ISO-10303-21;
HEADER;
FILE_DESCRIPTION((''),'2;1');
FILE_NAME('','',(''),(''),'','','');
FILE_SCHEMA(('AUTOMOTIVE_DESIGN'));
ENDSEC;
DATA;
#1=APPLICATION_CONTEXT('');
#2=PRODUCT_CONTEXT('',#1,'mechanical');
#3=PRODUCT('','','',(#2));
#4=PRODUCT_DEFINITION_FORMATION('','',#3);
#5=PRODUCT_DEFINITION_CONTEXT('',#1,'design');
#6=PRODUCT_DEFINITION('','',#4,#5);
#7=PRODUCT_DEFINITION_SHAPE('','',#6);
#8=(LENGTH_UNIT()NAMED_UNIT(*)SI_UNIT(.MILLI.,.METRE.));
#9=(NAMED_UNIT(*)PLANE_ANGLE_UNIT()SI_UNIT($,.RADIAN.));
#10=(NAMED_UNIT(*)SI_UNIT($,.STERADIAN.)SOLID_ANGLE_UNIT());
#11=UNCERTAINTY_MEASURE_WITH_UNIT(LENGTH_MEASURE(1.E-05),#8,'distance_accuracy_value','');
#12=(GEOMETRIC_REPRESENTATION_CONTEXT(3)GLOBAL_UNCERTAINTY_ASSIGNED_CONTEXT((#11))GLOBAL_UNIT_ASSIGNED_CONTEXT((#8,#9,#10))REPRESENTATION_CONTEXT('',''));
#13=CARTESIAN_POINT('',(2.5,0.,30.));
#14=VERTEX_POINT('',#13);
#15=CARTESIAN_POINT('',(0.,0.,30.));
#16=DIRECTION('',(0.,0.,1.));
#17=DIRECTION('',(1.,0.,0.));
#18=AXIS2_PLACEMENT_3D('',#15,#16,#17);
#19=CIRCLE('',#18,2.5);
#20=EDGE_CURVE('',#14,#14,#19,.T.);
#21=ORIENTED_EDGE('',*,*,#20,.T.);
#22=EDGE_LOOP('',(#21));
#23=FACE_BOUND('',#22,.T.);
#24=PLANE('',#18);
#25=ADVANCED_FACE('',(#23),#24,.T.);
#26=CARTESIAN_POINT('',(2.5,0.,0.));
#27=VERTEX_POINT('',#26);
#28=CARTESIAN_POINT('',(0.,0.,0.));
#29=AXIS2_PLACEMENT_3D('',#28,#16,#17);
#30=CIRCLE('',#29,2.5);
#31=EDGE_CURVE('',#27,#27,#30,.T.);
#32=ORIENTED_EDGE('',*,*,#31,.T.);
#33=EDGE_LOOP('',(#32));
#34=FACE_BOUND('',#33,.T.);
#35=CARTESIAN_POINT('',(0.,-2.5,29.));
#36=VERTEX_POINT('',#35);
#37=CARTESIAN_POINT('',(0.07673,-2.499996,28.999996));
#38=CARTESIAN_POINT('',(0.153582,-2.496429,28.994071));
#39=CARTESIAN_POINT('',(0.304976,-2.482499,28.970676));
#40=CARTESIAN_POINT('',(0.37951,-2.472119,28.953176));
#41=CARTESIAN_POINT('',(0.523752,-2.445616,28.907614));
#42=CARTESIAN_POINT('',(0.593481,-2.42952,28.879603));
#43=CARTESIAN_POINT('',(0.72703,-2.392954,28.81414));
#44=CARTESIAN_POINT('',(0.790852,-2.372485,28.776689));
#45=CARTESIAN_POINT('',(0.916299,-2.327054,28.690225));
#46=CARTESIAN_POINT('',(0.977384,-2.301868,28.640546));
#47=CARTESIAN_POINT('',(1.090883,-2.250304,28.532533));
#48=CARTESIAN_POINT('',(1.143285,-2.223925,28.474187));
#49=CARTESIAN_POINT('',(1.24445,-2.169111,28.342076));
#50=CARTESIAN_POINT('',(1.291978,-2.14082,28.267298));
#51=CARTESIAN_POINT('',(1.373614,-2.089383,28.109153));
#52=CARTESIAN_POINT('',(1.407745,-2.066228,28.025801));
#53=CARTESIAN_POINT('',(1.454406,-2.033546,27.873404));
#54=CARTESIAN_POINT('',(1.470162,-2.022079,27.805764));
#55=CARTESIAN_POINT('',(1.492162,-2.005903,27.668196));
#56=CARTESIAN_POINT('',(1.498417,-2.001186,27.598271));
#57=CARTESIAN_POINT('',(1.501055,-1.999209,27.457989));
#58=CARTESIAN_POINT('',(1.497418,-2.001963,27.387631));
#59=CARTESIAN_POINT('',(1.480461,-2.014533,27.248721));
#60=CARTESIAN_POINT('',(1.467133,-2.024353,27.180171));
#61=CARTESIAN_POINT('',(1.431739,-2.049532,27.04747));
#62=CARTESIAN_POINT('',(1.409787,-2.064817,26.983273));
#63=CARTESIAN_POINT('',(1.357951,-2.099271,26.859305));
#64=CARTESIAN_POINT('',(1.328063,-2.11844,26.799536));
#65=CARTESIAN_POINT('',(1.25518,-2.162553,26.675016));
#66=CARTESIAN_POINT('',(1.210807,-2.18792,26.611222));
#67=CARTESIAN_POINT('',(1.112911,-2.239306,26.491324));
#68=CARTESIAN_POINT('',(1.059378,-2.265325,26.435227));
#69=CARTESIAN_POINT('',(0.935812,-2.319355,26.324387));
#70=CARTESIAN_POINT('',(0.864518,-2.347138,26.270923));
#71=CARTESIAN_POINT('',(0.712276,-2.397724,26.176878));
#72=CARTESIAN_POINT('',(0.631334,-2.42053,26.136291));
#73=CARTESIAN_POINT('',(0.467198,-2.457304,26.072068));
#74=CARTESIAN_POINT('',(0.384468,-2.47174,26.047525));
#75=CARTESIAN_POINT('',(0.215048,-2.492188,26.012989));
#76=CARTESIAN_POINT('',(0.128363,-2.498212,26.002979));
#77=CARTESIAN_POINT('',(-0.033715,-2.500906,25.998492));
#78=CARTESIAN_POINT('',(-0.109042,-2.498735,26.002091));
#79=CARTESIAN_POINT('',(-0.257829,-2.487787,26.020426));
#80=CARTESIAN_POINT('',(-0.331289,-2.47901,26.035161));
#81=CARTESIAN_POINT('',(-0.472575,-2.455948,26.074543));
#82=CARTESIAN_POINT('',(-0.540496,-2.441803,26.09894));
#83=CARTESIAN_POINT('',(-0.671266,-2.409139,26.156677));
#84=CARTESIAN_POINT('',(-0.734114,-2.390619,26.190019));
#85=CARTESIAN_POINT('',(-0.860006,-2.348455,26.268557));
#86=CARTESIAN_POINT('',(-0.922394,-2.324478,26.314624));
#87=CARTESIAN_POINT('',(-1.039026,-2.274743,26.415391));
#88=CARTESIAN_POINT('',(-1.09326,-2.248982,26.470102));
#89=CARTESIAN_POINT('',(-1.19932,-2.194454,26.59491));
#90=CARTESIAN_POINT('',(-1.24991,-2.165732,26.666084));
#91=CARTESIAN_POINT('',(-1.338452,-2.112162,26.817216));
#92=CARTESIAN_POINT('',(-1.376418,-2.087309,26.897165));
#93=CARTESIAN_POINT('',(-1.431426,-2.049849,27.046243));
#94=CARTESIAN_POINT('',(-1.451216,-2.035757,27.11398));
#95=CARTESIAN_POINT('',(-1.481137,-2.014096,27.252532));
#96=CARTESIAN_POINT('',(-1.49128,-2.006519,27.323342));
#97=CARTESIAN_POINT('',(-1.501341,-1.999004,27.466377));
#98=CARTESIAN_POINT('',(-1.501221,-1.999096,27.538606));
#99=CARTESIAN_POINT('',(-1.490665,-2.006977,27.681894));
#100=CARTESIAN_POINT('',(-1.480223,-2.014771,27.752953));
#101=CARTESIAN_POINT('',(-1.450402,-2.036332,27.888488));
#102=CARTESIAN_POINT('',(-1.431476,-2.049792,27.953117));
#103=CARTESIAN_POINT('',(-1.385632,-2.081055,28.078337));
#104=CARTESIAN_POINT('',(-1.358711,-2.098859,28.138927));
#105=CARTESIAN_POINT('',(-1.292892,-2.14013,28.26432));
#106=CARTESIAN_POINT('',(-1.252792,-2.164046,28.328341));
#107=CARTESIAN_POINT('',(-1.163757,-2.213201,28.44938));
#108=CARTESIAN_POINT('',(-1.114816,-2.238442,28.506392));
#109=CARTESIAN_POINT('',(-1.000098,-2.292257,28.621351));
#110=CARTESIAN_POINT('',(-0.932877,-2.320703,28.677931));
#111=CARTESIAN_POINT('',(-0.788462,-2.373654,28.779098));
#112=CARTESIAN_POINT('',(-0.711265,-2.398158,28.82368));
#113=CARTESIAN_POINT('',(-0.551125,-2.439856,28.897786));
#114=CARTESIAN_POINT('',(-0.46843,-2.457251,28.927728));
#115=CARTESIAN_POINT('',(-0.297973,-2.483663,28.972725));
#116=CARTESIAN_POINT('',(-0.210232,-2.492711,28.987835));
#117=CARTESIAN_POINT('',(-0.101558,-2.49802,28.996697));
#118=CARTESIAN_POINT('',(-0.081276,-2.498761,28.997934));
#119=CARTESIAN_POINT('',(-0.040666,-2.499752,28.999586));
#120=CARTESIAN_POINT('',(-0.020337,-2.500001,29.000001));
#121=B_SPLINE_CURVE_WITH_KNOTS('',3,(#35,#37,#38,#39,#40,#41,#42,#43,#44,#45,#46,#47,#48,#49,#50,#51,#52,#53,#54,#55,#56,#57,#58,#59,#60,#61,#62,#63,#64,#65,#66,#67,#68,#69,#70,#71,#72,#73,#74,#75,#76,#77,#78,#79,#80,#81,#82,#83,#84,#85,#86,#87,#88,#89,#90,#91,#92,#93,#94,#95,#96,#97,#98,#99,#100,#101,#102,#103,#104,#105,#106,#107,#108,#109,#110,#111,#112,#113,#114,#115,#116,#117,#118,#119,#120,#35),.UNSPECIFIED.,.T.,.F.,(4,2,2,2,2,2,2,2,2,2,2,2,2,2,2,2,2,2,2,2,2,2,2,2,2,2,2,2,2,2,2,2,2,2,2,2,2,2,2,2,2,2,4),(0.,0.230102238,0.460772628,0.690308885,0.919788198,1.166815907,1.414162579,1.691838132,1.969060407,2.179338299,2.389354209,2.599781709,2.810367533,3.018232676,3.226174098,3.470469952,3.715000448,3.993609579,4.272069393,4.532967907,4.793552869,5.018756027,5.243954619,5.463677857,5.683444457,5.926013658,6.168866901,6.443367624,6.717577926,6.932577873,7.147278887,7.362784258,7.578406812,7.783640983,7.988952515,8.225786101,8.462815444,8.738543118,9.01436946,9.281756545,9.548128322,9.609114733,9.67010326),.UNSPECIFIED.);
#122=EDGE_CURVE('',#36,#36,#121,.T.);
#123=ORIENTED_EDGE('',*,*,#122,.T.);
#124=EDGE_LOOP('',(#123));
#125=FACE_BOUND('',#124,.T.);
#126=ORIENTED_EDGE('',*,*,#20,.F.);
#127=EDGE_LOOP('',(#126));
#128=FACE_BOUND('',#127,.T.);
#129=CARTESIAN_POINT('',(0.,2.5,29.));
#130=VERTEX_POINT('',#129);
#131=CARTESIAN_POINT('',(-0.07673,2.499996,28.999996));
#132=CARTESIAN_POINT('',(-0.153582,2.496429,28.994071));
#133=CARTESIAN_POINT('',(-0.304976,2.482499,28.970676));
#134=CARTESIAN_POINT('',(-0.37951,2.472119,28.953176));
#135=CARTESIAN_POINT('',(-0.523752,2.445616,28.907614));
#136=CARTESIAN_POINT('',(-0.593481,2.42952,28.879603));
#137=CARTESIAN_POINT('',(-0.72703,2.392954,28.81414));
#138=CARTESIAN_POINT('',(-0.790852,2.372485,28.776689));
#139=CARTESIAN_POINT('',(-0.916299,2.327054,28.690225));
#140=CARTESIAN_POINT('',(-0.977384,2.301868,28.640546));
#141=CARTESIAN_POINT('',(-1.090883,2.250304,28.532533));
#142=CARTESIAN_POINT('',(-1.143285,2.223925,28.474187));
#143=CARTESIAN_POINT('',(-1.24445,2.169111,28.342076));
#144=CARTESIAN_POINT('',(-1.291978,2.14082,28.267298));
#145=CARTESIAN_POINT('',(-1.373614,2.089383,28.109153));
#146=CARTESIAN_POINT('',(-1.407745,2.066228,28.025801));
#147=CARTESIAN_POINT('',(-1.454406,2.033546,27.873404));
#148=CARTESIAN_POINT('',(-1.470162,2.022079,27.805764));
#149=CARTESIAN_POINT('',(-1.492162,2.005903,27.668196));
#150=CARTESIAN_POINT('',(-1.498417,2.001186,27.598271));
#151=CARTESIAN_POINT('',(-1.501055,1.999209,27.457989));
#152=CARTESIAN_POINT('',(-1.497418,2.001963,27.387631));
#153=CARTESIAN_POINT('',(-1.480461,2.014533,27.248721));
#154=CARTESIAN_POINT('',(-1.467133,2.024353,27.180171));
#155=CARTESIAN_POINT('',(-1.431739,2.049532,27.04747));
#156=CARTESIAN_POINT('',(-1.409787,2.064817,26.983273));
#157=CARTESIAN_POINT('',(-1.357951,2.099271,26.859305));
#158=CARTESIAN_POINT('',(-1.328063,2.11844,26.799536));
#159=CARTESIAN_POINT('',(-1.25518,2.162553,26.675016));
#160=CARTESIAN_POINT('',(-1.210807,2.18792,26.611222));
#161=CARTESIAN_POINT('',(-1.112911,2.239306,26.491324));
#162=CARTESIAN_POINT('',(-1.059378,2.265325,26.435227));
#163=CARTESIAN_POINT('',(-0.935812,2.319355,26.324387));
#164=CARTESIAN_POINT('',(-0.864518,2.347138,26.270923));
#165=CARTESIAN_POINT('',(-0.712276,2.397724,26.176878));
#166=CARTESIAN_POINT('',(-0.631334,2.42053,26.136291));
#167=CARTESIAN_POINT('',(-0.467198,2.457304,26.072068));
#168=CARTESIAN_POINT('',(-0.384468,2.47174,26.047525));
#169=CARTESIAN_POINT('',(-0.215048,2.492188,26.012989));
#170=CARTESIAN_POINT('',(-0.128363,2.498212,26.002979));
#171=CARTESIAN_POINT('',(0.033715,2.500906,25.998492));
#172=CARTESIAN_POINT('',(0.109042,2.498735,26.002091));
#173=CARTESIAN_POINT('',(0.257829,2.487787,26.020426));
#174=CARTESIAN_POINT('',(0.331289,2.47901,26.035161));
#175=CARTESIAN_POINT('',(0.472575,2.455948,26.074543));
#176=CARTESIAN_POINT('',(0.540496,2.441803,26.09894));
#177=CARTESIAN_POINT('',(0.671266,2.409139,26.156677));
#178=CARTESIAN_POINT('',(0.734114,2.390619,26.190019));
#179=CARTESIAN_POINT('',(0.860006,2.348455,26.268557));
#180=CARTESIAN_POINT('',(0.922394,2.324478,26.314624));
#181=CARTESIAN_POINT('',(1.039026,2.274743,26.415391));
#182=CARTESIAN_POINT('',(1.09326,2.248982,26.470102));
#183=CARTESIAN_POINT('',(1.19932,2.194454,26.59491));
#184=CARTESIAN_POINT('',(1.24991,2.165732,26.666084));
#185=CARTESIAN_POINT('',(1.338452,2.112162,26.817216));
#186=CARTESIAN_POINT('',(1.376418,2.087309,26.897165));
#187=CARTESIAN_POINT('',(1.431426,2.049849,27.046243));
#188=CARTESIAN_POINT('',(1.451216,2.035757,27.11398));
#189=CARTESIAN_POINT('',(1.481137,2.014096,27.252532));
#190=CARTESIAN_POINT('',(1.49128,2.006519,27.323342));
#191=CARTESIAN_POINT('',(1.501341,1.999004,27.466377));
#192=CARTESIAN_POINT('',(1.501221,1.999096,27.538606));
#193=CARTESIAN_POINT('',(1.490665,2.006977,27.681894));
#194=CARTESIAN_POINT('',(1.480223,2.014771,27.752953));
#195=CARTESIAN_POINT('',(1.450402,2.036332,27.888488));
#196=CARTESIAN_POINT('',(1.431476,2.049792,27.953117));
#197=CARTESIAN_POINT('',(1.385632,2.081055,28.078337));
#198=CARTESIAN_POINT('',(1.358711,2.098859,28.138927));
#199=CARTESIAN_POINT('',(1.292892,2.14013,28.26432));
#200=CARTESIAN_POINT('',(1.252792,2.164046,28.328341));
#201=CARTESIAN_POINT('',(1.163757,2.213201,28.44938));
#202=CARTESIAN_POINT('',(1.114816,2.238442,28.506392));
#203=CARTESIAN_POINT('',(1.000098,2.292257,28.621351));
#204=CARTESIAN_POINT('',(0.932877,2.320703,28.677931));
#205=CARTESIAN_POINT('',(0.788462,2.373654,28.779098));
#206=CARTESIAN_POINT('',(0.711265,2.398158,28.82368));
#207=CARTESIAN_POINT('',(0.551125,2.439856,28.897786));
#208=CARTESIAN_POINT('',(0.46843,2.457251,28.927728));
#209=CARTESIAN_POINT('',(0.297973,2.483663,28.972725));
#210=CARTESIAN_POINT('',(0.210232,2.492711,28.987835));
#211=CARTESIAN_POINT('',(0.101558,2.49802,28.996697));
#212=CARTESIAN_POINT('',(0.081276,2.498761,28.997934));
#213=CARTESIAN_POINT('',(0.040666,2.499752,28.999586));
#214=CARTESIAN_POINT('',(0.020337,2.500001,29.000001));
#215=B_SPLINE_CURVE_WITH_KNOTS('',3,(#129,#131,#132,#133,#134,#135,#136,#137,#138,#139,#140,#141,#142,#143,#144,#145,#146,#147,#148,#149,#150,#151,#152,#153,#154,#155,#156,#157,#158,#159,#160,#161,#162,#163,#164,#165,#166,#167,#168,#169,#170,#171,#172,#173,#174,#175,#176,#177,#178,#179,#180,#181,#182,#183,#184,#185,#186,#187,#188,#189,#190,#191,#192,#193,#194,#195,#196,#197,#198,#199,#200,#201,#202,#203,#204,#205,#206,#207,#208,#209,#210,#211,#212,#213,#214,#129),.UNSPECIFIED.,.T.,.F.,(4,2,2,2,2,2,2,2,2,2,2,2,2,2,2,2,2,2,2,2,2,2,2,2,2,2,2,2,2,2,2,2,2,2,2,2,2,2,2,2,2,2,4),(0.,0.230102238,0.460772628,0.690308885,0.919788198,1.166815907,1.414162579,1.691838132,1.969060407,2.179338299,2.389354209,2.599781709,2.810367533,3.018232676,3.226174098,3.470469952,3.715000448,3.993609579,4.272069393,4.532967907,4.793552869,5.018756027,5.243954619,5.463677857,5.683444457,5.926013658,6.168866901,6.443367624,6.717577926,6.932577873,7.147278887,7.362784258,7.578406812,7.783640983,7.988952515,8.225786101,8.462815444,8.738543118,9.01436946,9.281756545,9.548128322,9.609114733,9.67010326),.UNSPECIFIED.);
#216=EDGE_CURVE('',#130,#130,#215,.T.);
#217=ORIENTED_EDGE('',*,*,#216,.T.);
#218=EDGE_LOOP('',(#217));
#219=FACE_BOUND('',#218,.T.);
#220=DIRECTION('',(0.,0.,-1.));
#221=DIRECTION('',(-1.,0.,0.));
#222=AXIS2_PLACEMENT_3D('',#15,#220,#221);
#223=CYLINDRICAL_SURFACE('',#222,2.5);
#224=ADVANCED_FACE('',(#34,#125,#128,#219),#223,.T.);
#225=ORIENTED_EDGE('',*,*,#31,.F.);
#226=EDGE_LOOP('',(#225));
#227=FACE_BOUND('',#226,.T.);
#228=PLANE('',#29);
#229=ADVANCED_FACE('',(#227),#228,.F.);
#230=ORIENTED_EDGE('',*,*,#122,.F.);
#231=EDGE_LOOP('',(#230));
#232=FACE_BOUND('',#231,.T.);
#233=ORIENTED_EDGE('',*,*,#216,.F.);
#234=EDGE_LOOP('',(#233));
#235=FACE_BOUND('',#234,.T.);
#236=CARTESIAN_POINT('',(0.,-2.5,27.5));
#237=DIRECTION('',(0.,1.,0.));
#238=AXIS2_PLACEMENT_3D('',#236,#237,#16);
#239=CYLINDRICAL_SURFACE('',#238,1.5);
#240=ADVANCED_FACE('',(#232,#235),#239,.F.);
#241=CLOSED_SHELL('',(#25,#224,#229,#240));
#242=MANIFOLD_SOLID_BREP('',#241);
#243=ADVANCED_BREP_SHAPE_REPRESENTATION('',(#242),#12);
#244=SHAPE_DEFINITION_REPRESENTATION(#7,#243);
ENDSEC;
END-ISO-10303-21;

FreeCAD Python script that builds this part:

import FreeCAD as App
import Part
import Sketcher

V = App.Vector

doc = App.newDocument("Part")
body = doc.addObject("PartDesign::Body", "Body")

# Sketch on XY plane
sketch1 = doc.addObject("Sketcher::SketchObject", "Sketch")
body.addObject(sketch1)
sketch1.AttachmentSupport = (doc.XY_Plane, [""])
sketch1.MapMode = "FlatFace"
sketch1.addGeometry(Part.Circle(V(0, 0, 0), V(0, 0, 1), 2.5), False)
sketch1.addConstraint([
    Sketcher.Constraint("Coincident", 0, 3, -1, 1),
    Sketcher.Constraint("Diameter", 0, 5.0),
])
pad1 = doc.addObject("PartDesign::Pad", "Pad")
body.addObject(pad1)
pad1.Profile = sketch1
pad1.Length = 30

# Sketch on XZ plane
sketch2 = doc.addObject("Sketcher::SketchObject", "Sketch001")
body.addObject(sketch2)
sketch2.AttachmentSupport = (doc.XZ_Plane, [""])
sketch2.MapMode = "FlatFace"
sketch2.addGeometry(Part.Circle(V(0, 27.5, 0), V(0, 0, 1), 1.5), False)
sketch2.addConstraint([
    Sketcher.Constraint("PointOnObject", 0, 3, -2),
    Sketcher.Constraint("Diameter", 0, 3.0),
    Sketcher.Constraint("DistanceY", -1, 1, 0, 3, 27.5),
])
pocket1 = doc.addObject("PartDesign::Pocket", "Pocket")
body.addObject(pocket1)
pocket1.Profile = sketch2
pocket1.Type = "ThroughAll"
pocket1.Midplane = True

doc.recompute()
